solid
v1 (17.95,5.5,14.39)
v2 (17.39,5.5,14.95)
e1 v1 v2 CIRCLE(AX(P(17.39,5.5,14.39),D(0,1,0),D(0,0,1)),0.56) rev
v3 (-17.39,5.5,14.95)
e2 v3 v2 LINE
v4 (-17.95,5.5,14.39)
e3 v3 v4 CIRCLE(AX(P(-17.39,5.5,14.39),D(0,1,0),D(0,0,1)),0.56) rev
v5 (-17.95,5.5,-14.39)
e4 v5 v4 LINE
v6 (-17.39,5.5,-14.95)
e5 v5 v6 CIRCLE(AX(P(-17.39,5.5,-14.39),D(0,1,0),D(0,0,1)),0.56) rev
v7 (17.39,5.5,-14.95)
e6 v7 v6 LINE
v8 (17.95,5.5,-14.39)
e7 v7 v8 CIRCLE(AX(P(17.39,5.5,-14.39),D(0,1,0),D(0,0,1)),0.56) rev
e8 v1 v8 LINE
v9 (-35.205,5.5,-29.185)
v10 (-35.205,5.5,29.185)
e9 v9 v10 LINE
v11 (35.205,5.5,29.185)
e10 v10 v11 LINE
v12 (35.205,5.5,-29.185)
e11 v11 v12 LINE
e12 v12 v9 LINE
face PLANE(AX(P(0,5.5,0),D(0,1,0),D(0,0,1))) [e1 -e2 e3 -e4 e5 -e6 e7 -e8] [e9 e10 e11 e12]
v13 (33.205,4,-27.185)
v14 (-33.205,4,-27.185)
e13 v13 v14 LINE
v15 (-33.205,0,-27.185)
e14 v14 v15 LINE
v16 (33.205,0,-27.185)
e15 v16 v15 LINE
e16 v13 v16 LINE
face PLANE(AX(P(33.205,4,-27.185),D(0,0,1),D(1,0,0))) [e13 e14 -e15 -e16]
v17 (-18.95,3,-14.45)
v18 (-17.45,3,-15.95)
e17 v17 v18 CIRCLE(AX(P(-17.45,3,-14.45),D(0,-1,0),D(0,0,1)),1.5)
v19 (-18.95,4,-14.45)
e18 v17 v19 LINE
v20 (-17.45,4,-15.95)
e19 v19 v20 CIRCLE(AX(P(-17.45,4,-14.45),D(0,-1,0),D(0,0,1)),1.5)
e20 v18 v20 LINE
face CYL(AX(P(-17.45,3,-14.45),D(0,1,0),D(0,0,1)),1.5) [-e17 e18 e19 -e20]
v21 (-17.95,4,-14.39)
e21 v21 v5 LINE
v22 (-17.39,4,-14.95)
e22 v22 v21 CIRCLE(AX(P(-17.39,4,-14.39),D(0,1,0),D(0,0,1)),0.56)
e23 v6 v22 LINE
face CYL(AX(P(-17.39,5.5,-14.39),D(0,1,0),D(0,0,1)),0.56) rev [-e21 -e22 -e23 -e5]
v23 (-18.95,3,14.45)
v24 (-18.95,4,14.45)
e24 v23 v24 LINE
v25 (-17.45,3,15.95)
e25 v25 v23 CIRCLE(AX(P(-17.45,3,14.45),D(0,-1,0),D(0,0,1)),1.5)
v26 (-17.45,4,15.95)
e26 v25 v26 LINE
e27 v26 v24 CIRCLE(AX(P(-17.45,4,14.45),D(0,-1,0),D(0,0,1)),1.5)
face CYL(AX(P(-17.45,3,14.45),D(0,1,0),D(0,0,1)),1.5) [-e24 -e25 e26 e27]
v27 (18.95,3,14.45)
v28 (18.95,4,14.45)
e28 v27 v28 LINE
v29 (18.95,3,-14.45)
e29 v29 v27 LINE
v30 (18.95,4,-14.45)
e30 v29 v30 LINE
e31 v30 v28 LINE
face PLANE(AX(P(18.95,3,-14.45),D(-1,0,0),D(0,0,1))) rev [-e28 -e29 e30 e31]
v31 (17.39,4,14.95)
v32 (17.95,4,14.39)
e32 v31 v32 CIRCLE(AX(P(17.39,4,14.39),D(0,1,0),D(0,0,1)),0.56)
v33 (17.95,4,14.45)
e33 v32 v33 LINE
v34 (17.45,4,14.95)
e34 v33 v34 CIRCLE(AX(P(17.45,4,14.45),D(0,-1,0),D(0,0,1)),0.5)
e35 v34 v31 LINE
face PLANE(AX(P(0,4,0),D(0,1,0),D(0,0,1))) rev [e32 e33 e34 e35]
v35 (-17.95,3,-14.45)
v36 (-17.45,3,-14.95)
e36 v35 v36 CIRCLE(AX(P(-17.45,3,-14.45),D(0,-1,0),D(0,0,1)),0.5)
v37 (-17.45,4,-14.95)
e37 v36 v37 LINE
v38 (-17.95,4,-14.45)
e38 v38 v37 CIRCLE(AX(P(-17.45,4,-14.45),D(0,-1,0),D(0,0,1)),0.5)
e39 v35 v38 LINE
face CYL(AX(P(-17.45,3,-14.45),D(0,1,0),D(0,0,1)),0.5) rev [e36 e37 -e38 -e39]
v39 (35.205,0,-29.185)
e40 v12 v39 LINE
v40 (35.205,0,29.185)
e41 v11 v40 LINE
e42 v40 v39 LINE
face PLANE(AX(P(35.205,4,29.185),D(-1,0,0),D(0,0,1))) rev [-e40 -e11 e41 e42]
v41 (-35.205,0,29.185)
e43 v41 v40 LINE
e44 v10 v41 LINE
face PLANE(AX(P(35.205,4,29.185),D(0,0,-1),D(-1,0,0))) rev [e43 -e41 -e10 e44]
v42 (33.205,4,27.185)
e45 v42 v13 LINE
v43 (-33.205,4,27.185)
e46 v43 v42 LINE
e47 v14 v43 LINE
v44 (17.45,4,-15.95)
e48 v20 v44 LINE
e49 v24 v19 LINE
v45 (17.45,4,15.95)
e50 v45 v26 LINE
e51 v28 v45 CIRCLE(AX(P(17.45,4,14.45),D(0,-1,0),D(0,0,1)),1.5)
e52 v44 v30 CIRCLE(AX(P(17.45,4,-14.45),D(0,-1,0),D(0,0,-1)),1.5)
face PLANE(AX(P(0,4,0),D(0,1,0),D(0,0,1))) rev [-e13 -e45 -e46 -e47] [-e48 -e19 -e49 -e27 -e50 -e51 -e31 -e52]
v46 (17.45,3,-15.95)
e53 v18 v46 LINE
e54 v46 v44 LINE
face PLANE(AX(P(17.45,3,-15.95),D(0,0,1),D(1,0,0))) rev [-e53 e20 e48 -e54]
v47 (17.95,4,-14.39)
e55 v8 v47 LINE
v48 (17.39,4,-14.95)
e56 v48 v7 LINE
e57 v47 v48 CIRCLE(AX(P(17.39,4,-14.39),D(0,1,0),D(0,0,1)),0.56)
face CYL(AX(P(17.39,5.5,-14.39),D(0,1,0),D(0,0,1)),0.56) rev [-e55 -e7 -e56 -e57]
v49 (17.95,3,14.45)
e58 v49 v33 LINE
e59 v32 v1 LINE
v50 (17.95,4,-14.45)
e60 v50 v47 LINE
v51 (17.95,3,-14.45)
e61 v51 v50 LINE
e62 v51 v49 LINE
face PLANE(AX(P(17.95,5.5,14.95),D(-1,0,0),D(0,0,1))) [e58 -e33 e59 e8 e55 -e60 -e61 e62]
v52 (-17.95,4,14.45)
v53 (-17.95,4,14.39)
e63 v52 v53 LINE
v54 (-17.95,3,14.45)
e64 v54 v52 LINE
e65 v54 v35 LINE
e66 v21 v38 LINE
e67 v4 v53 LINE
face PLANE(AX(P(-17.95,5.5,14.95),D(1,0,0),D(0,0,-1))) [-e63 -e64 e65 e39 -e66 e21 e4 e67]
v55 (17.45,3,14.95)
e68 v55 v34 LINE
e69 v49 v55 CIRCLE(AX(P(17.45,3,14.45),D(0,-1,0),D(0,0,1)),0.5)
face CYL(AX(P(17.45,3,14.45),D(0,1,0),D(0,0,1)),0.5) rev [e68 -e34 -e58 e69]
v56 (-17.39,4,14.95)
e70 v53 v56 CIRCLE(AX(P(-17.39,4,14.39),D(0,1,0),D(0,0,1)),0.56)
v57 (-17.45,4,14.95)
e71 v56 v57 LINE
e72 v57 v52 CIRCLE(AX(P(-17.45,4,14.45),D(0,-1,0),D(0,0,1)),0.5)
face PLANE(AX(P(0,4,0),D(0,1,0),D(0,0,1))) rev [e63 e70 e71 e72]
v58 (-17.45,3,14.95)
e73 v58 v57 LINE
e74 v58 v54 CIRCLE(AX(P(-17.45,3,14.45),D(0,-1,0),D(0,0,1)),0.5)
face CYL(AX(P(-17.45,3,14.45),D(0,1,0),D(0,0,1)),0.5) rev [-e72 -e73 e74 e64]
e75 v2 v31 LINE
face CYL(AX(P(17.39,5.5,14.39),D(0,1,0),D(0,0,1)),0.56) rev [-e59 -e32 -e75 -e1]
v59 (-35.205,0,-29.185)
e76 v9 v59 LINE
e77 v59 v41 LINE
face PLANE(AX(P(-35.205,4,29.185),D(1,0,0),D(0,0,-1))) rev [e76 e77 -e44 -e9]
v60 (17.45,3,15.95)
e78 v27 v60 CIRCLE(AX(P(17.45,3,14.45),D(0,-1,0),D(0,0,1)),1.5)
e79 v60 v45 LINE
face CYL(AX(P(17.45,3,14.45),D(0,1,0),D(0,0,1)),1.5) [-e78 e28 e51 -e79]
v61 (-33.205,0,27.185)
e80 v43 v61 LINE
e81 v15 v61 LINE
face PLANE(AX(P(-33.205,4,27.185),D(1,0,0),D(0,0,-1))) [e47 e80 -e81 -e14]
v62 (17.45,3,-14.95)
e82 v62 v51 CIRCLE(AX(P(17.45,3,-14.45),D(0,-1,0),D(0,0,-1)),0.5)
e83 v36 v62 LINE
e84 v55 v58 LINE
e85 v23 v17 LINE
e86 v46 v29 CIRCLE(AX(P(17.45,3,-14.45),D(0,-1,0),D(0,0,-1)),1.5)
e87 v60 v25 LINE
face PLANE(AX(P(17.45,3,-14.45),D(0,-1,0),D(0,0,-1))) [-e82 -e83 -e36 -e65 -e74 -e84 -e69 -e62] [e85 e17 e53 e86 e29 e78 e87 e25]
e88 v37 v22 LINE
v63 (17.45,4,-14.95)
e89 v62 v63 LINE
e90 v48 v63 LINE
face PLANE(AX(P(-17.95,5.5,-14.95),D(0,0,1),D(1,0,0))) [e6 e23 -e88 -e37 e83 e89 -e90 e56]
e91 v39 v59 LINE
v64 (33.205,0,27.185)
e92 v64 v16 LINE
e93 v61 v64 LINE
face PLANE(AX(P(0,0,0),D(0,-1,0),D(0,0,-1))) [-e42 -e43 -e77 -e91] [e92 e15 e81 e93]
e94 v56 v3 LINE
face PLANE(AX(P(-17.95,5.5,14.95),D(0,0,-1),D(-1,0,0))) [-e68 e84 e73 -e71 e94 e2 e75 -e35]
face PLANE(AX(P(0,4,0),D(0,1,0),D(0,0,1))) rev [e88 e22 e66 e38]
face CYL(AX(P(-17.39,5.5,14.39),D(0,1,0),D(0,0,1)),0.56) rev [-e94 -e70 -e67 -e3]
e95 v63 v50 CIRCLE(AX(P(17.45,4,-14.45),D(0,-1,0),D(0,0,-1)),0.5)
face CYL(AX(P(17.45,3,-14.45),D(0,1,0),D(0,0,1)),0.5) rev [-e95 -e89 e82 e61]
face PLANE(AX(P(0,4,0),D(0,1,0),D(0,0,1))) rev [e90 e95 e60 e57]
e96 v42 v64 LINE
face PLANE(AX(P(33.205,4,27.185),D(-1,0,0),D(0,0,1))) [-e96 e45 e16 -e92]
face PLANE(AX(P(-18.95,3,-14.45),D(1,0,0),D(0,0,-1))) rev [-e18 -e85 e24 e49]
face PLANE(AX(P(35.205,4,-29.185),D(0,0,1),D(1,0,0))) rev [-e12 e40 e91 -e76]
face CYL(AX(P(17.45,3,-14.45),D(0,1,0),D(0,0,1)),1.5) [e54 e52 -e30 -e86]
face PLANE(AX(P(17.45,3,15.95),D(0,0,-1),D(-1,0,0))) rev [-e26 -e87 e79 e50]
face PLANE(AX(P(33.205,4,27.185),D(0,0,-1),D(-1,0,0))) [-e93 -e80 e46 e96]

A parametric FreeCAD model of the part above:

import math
import FreeCAD as App
import Part
import Sketcher
from FreeCAD import Vector


def edges_at(feature, points):
    """Names of the edges that pass closest to the given points."""
    edges = feature.Shape.Edges
    near = lambda p: min(range(len(edges)), key=lambda i: edges[i].distToShape(Part.Vertex(*p))[0])
    return sorted({f"Edge{near(p) + 1}" for p in points})

doc = App.newDocument("Part")
body = doc.addObject("PartDesign::Body", "Body")

sketch1 = body.newObject("Sketcher::SketchObject", "Sketch")
sketch1.AttachmentSupport = (doc.getObject("XZ_Plane"), [""])
sketch1.MapMode = "FlatFace"
sketch1.addGeometry(Part.LineSegment(Vector(-35, -29, 0), Vector(-35, 29, 0)), False)
sketch1.addGeometry(Part.LineSegment(Vector(-35, 29, 0), Vector(35, 29, 0)), False)
sketch1.addGeometry(Part.LineSegment(Vector(35, 29, 0), Vector(35, -29, 0)), False)
sketch1.addGeometry(Part.LineSegment(Vector(35, -29, 0), Vector(-35, -29, 0)), False)
sketch1.addGeometry(Part.LineSegment(Vector(33, 27, 0), Vector(-33, 27, 0)), False)
sketch1.addGeometry(Part.LineSegment(Vector(-33, 27, 0), Vector(-33, -27, 0)), False)
sketch1.addGeometry(Part.LineSegment(Vector(-33, -27, 0), Vector(33, -27, 0)), False)
sketch1.addGeometry(Part.LineSegment(Vector(33, -27, 0), Vector(33, 27, 0)), False)
sketch1.addConstraint(Sketcher.Constraint("Coincident", 0, 2, 1, 1))
sketch1.addConstraint(Sketcher.Constraint("Coincident", 1, 2, 2, 1))
sketch1.addConstraint(Sketcher.Constraint("Coincident", 2, 2, 3, 1))
sketch1.addConstraint(Sketcher.Constraint("Coincident", 3, 2, 0, 1))
sketch1.addConstraint(Sketcher.Constraint("Coincident", 4, 2, 5, 1))
sketch1.addConstraint(Sketcher.Constraint("Coincident", 5, 2, 6, 1))
sketch1.addConstraint(Sketcher.Constraint("Coincident", 6, 2, 7, 1))
sketch1.addConstraint(Sketcher.Constraint("Coincident", 7, 2, 4, 1))
sketch1.addConstraint(Sketcher.Constraint("Vertical", 0))
sketch1.addConstraint(Sketcher.Constraint("Horizontal", 1))
sketch1.addConstraint(Sketcher.Constraint("Vertical", 2))
sketch1.addConstraint(Sketcher.Constraint("Horizontal", 3))
sketch1.addConstraint(Sketcher.Constraint("Horizontal", 4))
sketch1.addConstraint(Sketcher.Constraint("Vertical", 5))
sketch1.addConstraint(Sketcher.Constraint("Horizontal", 6))
sketch1.addConstraint(Sketcher.Constraint("Vertical", 7))
sketch1.addConstraint(Sketcher.Constraint("Symmetric", 0, 2, 2, 2, -1, 1))
sketch1.addConstraint(Sketcher.Constraint("Symmetric", 4, 2, 6, 2, -1, 1))
sketch1.addConstraint(Sketcher.Constraint("DistanceX", 0, 2, 4, 2, 2.0))
sketch1.addConstraint(Sketcher.Constraint("DistanceY", 4, 2, 0, 2, 2.0))
sketch1.addConstraint(Sketcher.Constraint("DistanceX", 1, 1, 1, 2, 70.41))
sketch1.addConstraint(Sketcher.Constraint("DistanceY", 0, 1, 0, 2, 58.37))
pad1 = body.newObject("PartDesign::Pad", "Pad")
pad1.Profile = sketch1
pad1.Length = 4
pad1.Reversed = True

sketch2 = body.newObject("Sketcher::SketchObject", "Sketch001")
sketch2.AttachmentSupport = (doc.getObject("XZ_Plane"), [""])
sketch2.MapMode = "FlatFace"
sketch2.AttachmentOffset = App.Placement(Vector(0, 0, -4), App.Rotation())
sketch2.addGeometry(Part.LineSegment(Vector(-35, -29, 0), Vector(-35, 29, 0)), False)
sketch2.addGeometry(Part.LineSegment(Vector(-35, 29, 0), Vector(35, 29, 0)), False)
sketch2.addGeometry(Part.LineSegment(Vector(35, 29, 0), Vector(35, -29, 0)), False)
sketch2.addGeometry(Part.LineSegment(Vector(35, -29, 0), Vector(-35, -29, 0)), False)
sketch2.addGeometry(Part.LineSegment(Vector(18, 15, 0), Vector(-18, 15, 0)), False)
sketch2.addGeometry(Part.LineSegment(Vector(-18, 15, 0), Vector(-18, -15, 0)), False)
sketch2.addGeometry(Part.LineSegment(Vector(-18, -15, 0), Vector(18, -15, 0)), False)
sketch2.addGeometry(Part.LineSegment(Vector(18, -15, 0), Vector(18, 15, 0)), False)
sketch2.addConstraint(Sketcher.Constraint("Coincident", 0, 2, 1, 1))
sketch2.addConstraint(Sketcher.Constraint("Coincident", 1, 2, 2, 1))
sketch2.addConstraint(Sketcher.Constraint("Coincident", 2, 2, 3, 1))
sketch2.addConstraint(Sketcher.Constraint("Coincident", 3, 2, 0, 1))
sketch2.addConstraint(Sketcher.Constraint("Coincident", 4, 2, 5, 1))
sketch2.addConstraint(Sketcher.Constraint("Coincident", 5, 2, 6, 1))
sketch2.addConstraint(Sketcher.Constraint("Coincident", 6, 2, 7, 1))
sketch2.addConstraint(Sketcher.Constraint("Coincident", 7, 2, 4, 1))
sketch2.addConstraint(Sketcher.Constraint("Vertical", 0))
sketch2.addConstraint(Sketcher.Constraint("Horizontal", 1))
sketch2.addConstraint(Sketcher.Constraint("Vertical", 2))
sketch2.addConstraint(Sketcher.Constraint("Horizontal", 3))
sketch2.addConstraint(Sketcher.Constraint("Horizontal", 4))
sketch2.addConstraint(Sketcher.Constraint("Vertical", 5))
sketch2.addConstraint(Sketcher.Constraint("Horizontal", 6))
sketch2.addConstraint(Sketcher.Constraint("Vertical", 7))
sketch2.addConstraint(Sketcher.Constraint("Symmetric", 0, 2, 2, 2, -1, 1))
sketch2.addConstraint(Sketcher.Constraint("Symmetric", 4, 2, 6, 2, -1, 1))
sketch2.addConstraint(Sketcher.Constraint("DistanceX", 4, 2, 4, 1, 35.9))
sketch2.addConstraint(Sketcher.Constraint("DistanceY", 5, 2, 5, 1, 29.9))
sketch2.addConstraint(Sketcher.Constraint("DistanceX", 1, 1, 1, 2, 70.41))
sketch2.addConstraint(Sketcher.Constraint("DistanceY", 0, 1, 0, 2, 58.37))
pad2 = body.newObject("PartDesign::Pad", "Pad001")
pad2.Profile = sketch2
pad2.Length = 1.5
pad2.Reversed = True
doc.recompute()

fillet = body.newObject("PartDesign::Fillet", "Fillet")
fillet.Base = (pad2, edges_at(pad2, [
    (17.95, 4.75, -14.95),
    (-17.95, 4.75, -14.95),
    (-17.95, 4.75, 14.95),
    (17.95, 4.75, 14.95),
]))
fillet.Radius = 0.56

sketch3 = body.newObject("Sketcher::SketchObject", "Sketch002")
sketch3.AttachmentSupport = (doc.getObject("XZ_Plane"), [""])
sketch3.MapMode = "FlatFace"
sketch3.AttachmentOffset = App.Placement(Vector(0, 0, -4), App.Rotation())
sketch3.addGeometry(Part.LineSegment(Vector(18.95, -14.45, 0), Vector(18.95, 14.45, 0)), False)
sketch3.addGeometry(Part.ArcOfCircle(Part.Circle(Vector(17.45, 14.45, 0), Vector(0, 0, 1), 1.5), math.radians(0), math.radians(90)), False)
sketch3.addGeometry(Part.LineSegment(Vector(17.45, 15.95, 0), Vector(-17.45, 15.95, 0)), False)
sketch3.addGeometry(Part.ArcOfCircle(Part.Circle(Vector(-17.45, 14.45, 0), Vector(0, 0, 1), 1.5), math.radians(90), math.radians(180)), False)
sketch3.addGeometry(Part.LineSegment(Vector(-18.95, 14.45, 0), Vector(-18.95, -14.45, 0)), False)
sketch3.addGeometry(Part.ArcOfCircle(Part.Circle(Vector(-17.45, -14.45, 0), Vector(0, 0, 1), 1.5), math.radians(180), math.radians(270)), False)
sketch3.addGeometry(Part.LineSegment(Vector(-17.45, -15.95, 0), Vector(17.45, -15.95, 0)), False)
sketch3.addGeometry(Part.ArcOfCircle(Part.Circle(Vector(17.45, -14.45, 0), Vector(0, 0, 1), 1.5), math.radians(-90), math.radians(0)), False)
sketch3.addGeometry(Part.ArcOfCircle(Part.Circle(Vector(17.45, -14.45, 0), Vector(0, 0, 1), 0.5), math.radians(-90), math.radians(0)), False)
sketch3.addGeometry(Part.LineSegment(Vector(17.45, -14.95, 0), Vector(-17.45, -14.95, 0)), False)
sketch3.addGeometry(Part.ArcOfCircle(Part.Circle(Vector(-17.45, -14.45, 0), Vector(0, 0, 1), 0.5), math.radians(180), math.radians(270)), False)
sketch3.addGeometry(Part.LineSegment(Vector(-17.95, -14.45, 0), Vector(-17.95, 14.45, 0)), False)
sketch3.addGeometry(Part.ArcOfCircle(Part.Circle(Vector(-17.45, 14.45, 0), Vector(0, 0, 1), 0.5), math.radians(90), math.radians(180)), False)
sketch3.addGeometry(Part.LineSegment(Vector(-17.45, 14.95, 0), Vector(17.45, 14.95, 0)), False)
sketch3.addGeometry(Part.ArcOfCircle(Part.Circle(Vector(17.45, 14.45, 0), Vector(0, 0, 1), 0.5), math.radians(0), math.radians(90)), False)
sketch3.addGeometry(Part.LineSegment(Vector(17.95, 14.45, 0), Vector(17.95, -14.45, 0)), False)
sketch3.addConstraint(Sketcher.Constraint("Tangent", 0, 2, 1, 1))
sketch3.addConstraint(Sketcher.Constraint("Tangent", 1, 2, 2, 1))
sketch3.addConstraint(Sketcher.Constraint("Tangent", 2, 2, 3, 1))
sketch3.addConstraint(Sketcher.Constraint("Tangent", 3, 2, 4, 1))
sketch3.addConstraint(Sketcher.Constraint("Tangent", 4, 2, 5, 1))
sketch3.addConstraint(Sketcher.Constraint("Tangent", 5, 2, 6, 1))
sketch3.addConstraint(Sketcher.Constraint("Tangent", 6, 2, 7, 1))
sketch3.addConstraint(Sketcher.Constraint("Tangent", 7, 2, 0, 1))
sketch3.addConstraint(Sketcher.Constraint("Tangent", 8, 1, 9, 1))
sketch3.addConstraint(Sketcher.Constraint("Tangent", 9, 2, 10, 2))
sketch3.addConstraint(Sketcher.Constraint("Tangent", 10, 1, 11, 1))
sketch3.addConstraint(Sketcher.Constraint("Tangent", 11, 2, 12, 2))
sketch3.addConstraint(Sketcher.Constraint("Tangent", 12, 1, 13, 1))
sketch3.addConstraint(Sketcher.Constraint("Tangent", 13, 2, 14, 2))
sketch3.addConstraint(Sketcher.Constraint("Tangent", 14, 1, 15, 1))
sketch3.addConstraint(Sketcher.Constraint("Tangent", 15, 2, 8, 2))
sketch3.addConstraint(Sketcher.Constraint("Vertical", 0))
sketch3.addConstraint(Sketcher.Constraint("Horizontal", 2))
sketch3.addConstraint(Sketcher.Constraint("Vertical", 4))
sketch3.addConstraint(Sketcher.Constraint("Horizontal", 6))
sketch3.addConstraint(Sketcher.Constraint("Horizontal", 9))
sketch3.addConstraint(Sketcher.Constraint("Vertical", 11))
sketch3.addConstraint(Sketcher.Constraint("Horizontal", 13))
sketch3.addConstraint(Sketcher.Constraint("Vertical", 15))
sketch3.addConstraint(Sketcher.Constraint("Coincident", 8, 3, 7, 3))
sketch3.addConstraint(Sketcher.Constraint("Coincident", 10, 3, 5, 3))
sketch3.addConstraint(Sketcher.Constraint("Coincident", 12, 3, 3, 3))
sketch3.addConstraint(Sketcher.Constraint("Equal", 1, 3))
sketch3.addConstraint(Sketcher.Constraint("Equal", 3, 5))
sketch3.addConstraint(Sketcher.Constraint("Equal", 5, 7))
sketch3.addConstraint(Sketcher.Constraint("Equal", 12, 14))
sketch3.addConstraint(Sketcher.Constraint("Symmetric", 1, 3, 5, 3, -1, 1))
sketch3.addConstraint(Sketcher.Constraint("Radius", 1, 1.5))
sketch3.addConstraint(Sketcher.Constraint("Radius", 8, 0.5))
sketch3.addConstraint(Sketcher.Constraint("DistanceX", 2, 2, 2, 1, 34.9))
sketch3.addConstraint(Sketcher.Constraint("DistanceY", 0, 1, 0, 2, 28.9))
pad3 = body.newObject("PartDesign::Pad", "Pad002")
pad3.Profile = sketch3
pad3.Length = 1

doc.recompute()
